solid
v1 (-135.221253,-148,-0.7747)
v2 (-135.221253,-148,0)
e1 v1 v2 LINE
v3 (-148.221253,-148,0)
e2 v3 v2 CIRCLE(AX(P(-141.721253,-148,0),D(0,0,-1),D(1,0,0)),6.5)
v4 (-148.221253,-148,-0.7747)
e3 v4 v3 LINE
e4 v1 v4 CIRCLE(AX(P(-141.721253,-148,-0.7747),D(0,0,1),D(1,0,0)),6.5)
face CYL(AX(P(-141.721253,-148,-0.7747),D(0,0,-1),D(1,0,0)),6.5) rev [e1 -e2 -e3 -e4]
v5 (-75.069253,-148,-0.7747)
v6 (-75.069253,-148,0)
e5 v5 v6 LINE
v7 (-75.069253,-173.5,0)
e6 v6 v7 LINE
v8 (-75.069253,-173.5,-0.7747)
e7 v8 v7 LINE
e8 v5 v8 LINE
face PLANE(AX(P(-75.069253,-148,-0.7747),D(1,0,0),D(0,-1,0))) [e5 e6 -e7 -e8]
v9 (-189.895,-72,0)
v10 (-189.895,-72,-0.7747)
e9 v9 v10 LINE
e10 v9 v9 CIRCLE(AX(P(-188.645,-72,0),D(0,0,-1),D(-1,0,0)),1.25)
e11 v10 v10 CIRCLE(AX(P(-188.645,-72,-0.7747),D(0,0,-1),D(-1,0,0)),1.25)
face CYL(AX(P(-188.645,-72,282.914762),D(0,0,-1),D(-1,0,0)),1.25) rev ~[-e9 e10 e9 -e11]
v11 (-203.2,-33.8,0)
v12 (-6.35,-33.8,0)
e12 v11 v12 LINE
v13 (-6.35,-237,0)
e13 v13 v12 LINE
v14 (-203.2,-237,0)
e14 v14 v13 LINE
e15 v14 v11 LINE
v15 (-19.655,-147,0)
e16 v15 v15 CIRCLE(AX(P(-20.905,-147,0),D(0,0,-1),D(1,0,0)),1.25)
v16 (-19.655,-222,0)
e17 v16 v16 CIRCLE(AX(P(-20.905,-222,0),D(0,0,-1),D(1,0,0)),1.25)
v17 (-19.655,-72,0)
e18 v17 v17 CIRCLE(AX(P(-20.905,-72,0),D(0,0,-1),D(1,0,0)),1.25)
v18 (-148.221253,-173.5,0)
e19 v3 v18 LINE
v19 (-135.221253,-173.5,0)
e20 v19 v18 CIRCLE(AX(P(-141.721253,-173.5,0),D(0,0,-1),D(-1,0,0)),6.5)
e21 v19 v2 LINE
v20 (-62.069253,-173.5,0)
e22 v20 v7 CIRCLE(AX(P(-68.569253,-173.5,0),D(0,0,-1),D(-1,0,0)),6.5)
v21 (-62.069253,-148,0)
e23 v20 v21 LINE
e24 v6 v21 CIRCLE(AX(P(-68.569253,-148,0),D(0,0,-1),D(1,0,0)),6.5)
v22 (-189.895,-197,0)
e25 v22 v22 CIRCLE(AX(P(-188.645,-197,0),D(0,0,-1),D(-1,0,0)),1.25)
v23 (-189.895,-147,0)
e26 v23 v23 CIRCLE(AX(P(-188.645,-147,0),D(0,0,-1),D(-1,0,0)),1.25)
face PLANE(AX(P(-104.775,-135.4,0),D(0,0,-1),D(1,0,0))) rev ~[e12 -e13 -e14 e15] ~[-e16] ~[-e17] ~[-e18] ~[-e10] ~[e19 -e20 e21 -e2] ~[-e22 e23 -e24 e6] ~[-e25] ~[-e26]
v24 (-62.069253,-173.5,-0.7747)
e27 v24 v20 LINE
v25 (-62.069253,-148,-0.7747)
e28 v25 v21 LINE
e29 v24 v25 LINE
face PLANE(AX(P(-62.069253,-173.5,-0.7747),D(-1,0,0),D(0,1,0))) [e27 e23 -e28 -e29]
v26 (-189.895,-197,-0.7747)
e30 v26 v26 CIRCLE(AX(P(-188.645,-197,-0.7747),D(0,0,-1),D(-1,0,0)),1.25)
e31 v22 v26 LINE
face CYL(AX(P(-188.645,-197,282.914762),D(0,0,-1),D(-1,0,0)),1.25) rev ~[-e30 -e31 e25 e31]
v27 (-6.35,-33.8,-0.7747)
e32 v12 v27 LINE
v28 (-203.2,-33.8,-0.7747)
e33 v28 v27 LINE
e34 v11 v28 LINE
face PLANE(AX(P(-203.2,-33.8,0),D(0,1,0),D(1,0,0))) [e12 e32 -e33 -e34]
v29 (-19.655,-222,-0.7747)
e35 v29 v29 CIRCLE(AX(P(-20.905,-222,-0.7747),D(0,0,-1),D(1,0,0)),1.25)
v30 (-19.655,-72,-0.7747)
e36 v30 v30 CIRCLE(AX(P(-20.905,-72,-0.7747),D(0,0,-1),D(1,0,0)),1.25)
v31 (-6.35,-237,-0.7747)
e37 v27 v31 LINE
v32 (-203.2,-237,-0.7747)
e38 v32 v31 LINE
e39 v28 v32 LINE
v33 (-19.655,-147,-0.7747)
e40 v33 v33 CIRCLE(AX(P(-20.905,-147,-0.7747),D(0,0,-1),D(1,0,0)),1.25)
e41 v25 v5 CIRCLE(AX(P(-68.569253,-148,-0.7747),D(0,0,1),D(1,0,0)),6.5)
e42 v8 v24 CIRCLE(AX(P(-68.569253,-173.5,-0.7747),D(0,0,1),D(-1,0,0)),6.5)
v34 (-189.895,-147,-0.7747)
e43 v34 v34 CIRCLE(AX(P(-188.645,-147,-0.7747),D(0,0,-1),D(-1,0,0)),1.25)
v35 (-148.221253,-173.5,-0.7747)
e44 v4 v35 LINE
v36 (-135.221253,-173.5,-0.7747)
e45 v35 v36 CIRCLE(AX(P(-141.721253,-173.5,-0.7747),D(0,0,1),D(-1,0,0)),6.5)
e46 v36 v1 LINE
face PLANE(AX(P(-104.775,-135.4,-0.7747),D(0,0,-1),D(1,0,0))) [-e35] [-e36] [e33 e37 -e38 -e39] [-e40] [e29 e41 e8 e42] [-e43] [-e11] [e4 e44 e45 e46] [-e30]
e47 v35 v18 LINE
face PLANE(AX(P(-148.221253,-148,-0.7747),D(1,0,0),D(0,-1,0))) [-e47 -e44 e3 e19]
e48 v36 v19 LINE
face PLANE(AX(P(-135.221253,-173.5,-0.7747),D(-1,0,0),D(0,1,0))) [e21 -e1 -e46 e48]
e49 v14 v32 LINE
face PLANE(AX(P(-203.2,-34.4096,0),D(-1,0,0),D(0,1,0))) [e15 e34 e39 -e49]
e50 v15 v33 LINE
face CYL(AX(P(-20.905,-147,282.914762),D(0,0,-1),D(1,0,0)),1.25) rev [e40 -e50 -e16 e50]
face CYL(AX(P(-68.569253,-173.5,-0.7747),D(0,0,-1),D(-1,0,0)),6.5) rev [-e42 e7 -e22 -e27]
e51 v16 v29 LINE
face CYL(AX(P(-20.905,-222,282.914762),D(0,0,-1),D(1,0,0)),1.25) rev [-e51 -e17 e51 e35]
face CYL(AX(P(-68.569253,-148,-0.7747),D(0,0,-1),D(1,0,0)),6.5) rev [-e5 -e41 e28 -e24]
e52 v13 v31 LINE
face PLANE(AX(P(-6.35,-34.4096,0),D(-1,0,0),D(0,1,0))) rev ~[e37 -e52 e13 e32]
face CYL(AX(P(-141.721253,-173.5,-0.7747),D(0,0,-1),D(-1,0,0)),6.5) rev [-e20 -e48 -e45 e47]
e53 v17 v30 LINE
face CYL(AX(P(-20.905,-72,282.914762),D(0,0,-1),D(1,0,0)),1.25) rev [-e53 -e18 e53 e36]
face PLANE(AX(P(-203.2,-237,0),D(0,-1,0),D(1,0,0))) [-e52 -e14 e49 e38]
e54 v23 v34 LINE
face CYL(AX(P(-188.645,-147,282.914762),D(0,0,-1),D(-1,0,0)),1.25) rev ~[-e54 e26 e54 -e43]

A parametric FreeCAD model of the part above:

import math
import FreeCAD as App
import Part
import Sketcher
Q = App.Units.Quantity


def add_polygon(sketch, points):
    """Adds a closed chain of lines whose ends are joined by coincident constraints."""
    first, n = sketch.GeometryCount, len(points)
    for a, b in zip(points, points[1:] + points[:1]):
        sketch.addGeometry(Part.LineSegment(App.Vector(*a, 0), App.Vector(*b, 0)), False)
    for i in range(n):
        sketch.addConstraint(Sketcher.Constraint("Coincident", first + i, 2, first + (i + 1) % n, 1))

doc = App.newDocument("Part")
body = doc.addObject("PartDesign::Body", "Body")

sketch1 = body.newObject("Sketcher::SketchObject", "Sketch")
sketch1.AttachmentSupport = (doc.getObject("XY_Plane"), [""])
sketch1.MapMode = "FlatFace"
add_polygon(sketch1, [(-203, -237), (-203, -34), (-6, -34), (-6, -237)])
sketch1.addConstraint([
    Sketcher.Constraint("Vertical", 0),
    Sketcher.Constraint("Horizontal", 1),
    Sketcher.Constraint("Vertical", 2),
    Sketcher.Constraint("Horizontal", 3),
    Sketcher.Constraint("DistanceY", 0, 1, 0, 2, Q("203.2 mm")),
    Sketcher.Constraint("DistanceY", 2, 2, -1, 1, Q("237 mm")),
    Sketcher.Constraint("DistanceX", 1, 1, 1, 2, Q("196.85 mm")),
    Sketcher.Constraint("DistanceX", 0, 2, -1, 1, Q("203.2 mm")),
])
pad1 = body.newObject("PartDesign::Pad", "Pad")
pad1.Profile = sketch1
pad1.Length = 0.7747
pad1.Reversed = True

sketch2 = body.newObject("Sketcher::SketchObject", "Sketch001")
sketch2.AttachmentSupport = (doc.getObject("XY_Plane"), [""])
sketch2.MapMode = "FlatFace"
sketch2.AttachmentOffset = App.Placement(App.Vector(0, 0, -0.7747), App.Rotation())
sketch2.addGeometry([
    Part.LineSegment(App.Vector(-135, -148, 0), App.Vector(-135, -174, 0)),
    Part.ArcOfCircle(Part.Circle(App.Vector(-142, -174, 0), App.Vector(0, 0, 1), 6), math.radians(180), math.radians(360)),
    Part.LineSegment(App.Vector(-148, -174, 0), App.Vector(-148, -148, 0)),
    Part.ArcOfCircle(Part.Circle(App.Vector(-142, -148, 0), App.Vector(0, 0, 1), 6), math.radians(0), math.radians(180)),
    Part.LineSegment(App.Vector(-62, -148, 0), App.Vector(-62, -174, 0)),
    Part.ArcOfCircle(Part.Circle(App.Vector(-69, -174, 0), App.Vector(0, 0, 1), 6), math.radians(180), math.radians(360)),
    Part.LineSegment(App.Vector(-75, -174, 0), App.Vector(-75, -148, 0)),
    Part.ArcOfCircle(Part.Circle(App.Vector(-69, -148, 0), App.Vector(0, 0, 1), 6), math.radians(0), math.radians(180)),
], False)
sketch2.addConstraint([
    Sketcher.Constraint("Tangent", 0, 2, 1, 2),
    Sketcher.Constraint("Tangent", 1, 1, 2, 1),
    Sketcher.Constraint("Tangent", 2, 2, 3, 2),
    Sketcher.Constraint("Tangent", 3, 1, 0, 1),
    Sketcher.Constraint("Tangent", 4, 2, 5, 2),
    Sketcher.Constraint("Tangent", 5, 1, 6, 1),
    Sketcher.Constraint("Tangent", 6, 2, 7, 2),
    Sketcher.Constraint("Tangent", 7, 1, 4, 1),
    Sketcher.Constraint("Vertical", 0),
    Sketcher.Constraint("Vertical", 2),
    Sketcher.Constraint("Vertical", 4),
    Sketcher.Constraint("Vertical", 6),
    Sketcher.Constraint("Equal", 3, 5),
    Sketcher.Constraint("Horizontal", 1, 3, 5, 3),
    Sketcher.Constraint("Horizontal", 3, 3, 7, 3),
    Sketcher.Constraint("Radius", 1, Q("6.5 mm")),
    Sketcher.Constraint("DistanceY", 0, 2, 0, 1, Q("25.5 mm")),
    Sketcher.Constraint("DistanceY", 3, 3, -1, 1, Q("148 mm")),
    Sketcher.Constraint("DistanceX", 1, 3, 5, 3, Q("73.152 mm")),
    Sketcher.Constraint("DistanceX", 1, 3, -1, 1, Q("141.721253 mm")),
])
pocket1 = body.newObject("PartDesign::Pocket", "Pocket")
pocket1.Profile = sketch2
pocket1.Type = "ThroughAll"
pocket1.Reversed = True

sketch3 = body.newObject("Sketcher::SketchObject", "Sketch002")
sketch3.AttachmentSupport = (doc.getObject("XY_Plane"), [""])
sketch3.MapMode = "FlatFace"
add_polygon(sketch3, [(-203.2, -33.8), (-203.2, -34.4), (-6.3, -34.4), (-6.3, -33.8)])
sketch3.addConstraint([
    Sketcher.Constraint("Vertical", 0),
    Sketcher.Constraint("Horizontal", 1),
    Sketcher.Constraint("Vertical", 2),
    Sketcher.Constraint("Horizontal", 3),
    Sketcher.Constraint("DistanceX", 1, 1, 1, 2, Q("196.85 mm")),
    Sketcher.Constraint("DistanceX", 0, 2, -1, 1, Q("203.2 mm")),
    Sketcher.Constraint("DistanceY", 2, 2, -1, 1, Q("33.8 mm")),
    Sketcher.Constraint("DistanceY", 0, 2, 0, 1, Q("0.6096 mm")),
])
pad2 = body.newObject("PartDesign::Pad", "Pad001")
pad2.Profile = sketch3
pad2.Length = 12

sketch4 = body.newObject("Sketcher::SketchObject", "Sketch003")
sketch4.AttachmentSupport = (doc.getObject("XY_Plane"), [""])
sketch4.MapMode = "FlatFace"
add_polygon(sketch4, [(-203, -48), (-203, -60), (-6, -60), (-6, -48)])
sketch4.addConstraint([
    Sketcher.Constraint("Vertical", 0),
    Sketcher.Constraint("Horizontal", 1),
    Sketcher.Constraint("Vertical", 2),
    Sketcher.Constraint("Horizontal", 3),
    Sketcher.Constraint("DistanceX", 1, 1, 1, 2, Q("196.85 mm")),
    Sketcher.Constraint("DistanceX", 0, 2, -1, 1, Q("203.2 mm")),
    Sketcher.Constraint("DistanceY", 0, 2, 0, 1, Q("11.938 mm")),
    Sketcher.Constraint("DistanceY", 0, 2, -1, 1, Q("59.904004 mm")),
])
pad3 = body.newObject("PartDesign::Pad", "Pad002")
pad3.Profile = sketch4
pad3.Length = 0.7747
pad3.Reversed = True

sketch5 = body.newObject("Sketcher::SketchObject", "Sketch004")
sketch5.AttachmentSupport = (doc.getObject("XY_Plane"), [""])
sketch5.MapMode = "FlatFace"
sketch5.AttachmentOffset = App.Placement(App.Vector(0, 0, 12), App.Rotation())
add_polygon(sketch5, [(-203.2, -33.8), (-203.2, -34.4), (-6.3, -34.4), (-6.3, -33.8)])
sketch5.addConstraint([
    Sketcher.Constraint("Vertical", 0),
    Sketcher.Constraint("Horizontal", 1),
    Sketcher.Constraint("Vertical", 2),
    Sketcher.Constraint("Horizontal", 3),
    Sketcher.Constraint("DistanceX", 1, 1, 1, 2, Q("196.85 mm")),
    Sketcher.Constraint("DistanceX", 0, 2, -1, 1, Q("203.2 mm")),
    Sketcher.Constraint("DistanceY", 2, 2, -1, 1, Q("33.8 mm")),
    Sketcher.Constraint("DistanceY", 0, 2, 0, 1, Q("0.6096 mm")),
])
pocket2 = body.newObject("PartDesign::Pocket", "Pocket001")
pocket2.Profile = sketch5
pocket2.Length = 12

sketch6 = body.newObject("Sketcher::SketchObject", "Sketch005")
sketch6.AttachmentSupport = (doc.getObject("XY_Plane"), [""])
sketch6.MapMode = "FlatFace"
sketch6.addGeometry([
    Part.Circle(App.Vector(-188.6, -72, 0), App.Vector(0, 0, 1), 1.2),
    Part.Circle(App.Vector(-188.6, -222, 0), App.Vector(0, 0, 1), 1.2),
    Part.Circle(App.Vector(-188.6, -197, 0), App.Vector(0, 0, 1), 1.2),
    Part.Circle(App.Vector(-188.6, -172, 0), App.Vector(0, 0, 1), 1.2),
    Part.Circle(App.Vector(-188.6, -147, 0), App.Vector(0, 0, 1), 1.2),
    Part.Circle(App.Vector(-188.6, -122, 0), App.Vector(0, 0, 1), 1.2),
    Part.Circle(App.Vector(-188.6, -97, 0), App.Vector(0, 0, 1), 1.2),
], False)
sketch6.addConstraint([
    Sketcher.Constraint("Equal", 0, 1),
    Sketcher.Constraint("Equal", 1, 2),
    Sketcher.Constraint("Equal", 2, 3),
    Sketcher.Constraint("Equal", 3, 4),
    Sketcher.Constraint("Equal", 4, 5),
    Sketcher.Constraint("Equal", 5, 6),
    Sketcher.Constraint("Vertical", 0, 3, 1, 3),
    Sketcher.Constraint("Vertical", 1, 3, 2, 3),
    Sketcher.Constraint("Vertical", 2, 3, 3, 3),
    Sketcher.Constraint("Vertical", 3, 3, 4, 3),
    Sketcher.Constraint("Vertical", 4, 3, 5, 3),
    Sketcher.Constraint("Vertical", 5, 3, 6, 3),
    Sketcher.Constraint("Diameter", 0, Q("2.5 mm")),
    Sketcher.Constraint("DistanceY", 0, 3, -1, 1, Q("72 mm")),
    Sketcher.Constraint("DistanceY", 1, 3, -1, 1, Q("222 mm")),
    Sketcher.Constraint("DistanceY", 2, 3, -1, 1, Q("197 mm")),
    Sketcher.Constraint("DistanceY", 3, 3, -1, 1, Q("172 mm")),
    Sketcher.Constraint("DistanceY", 4, 3, -1, 1, Q("147 mm")),
    Sketcher.Constraint("DistanceY", 5, 3, -1, 1, Q("122 mm")),
    Sketcher.Constraint("DistanceY", 6, 3, -1, 1, Q("97 mm")),
    Sketcher.Constraint("DistanceX", 0, 3, -1, 1, Q("188.645 mm")),
])
doc.recompute()
hole = body.newObject("PartDesign::Hole", "Hole")
hole.Profile = sketch6
hole.ThreadType = "None"
hole.Diameter = 2.5
hole.DepthType = "ThroughAll"
doc.recompute()

datumplane = body.newObject("PartDesign::Plane", "DatumPlane")
datumplane.AttachmentSupport = (doc.getObject("YZ_Plane"), [""])
datumplane.MapMode = "FlatFace"
datumplane.AttachmentOffset = App.Placement(App.Vector(0, 0, -104.775), App.Rotation())
mirrored = body.newObject("PartDesign::Mirrored", "Mirrored")
mirrored.Originals = [hole]
mirrored.MirrorPlane = (datumplane, [""])
body.Tip = mirrored

sketch7 = body.newObject("Sketcher::SketchObject", "Sketch006")
sketch7.AttachmentSupport = (doc.getObject("XY_Plane"), [""])
sketch7.MapMode = "FlatFace"
sketch7.AttachmentOffset = App.Placement(App.Vector(0, 0, -0.7747), App.Rotation())
add_polygon(sketch7, [(-10, -93), (-10, -127), (-193, -127), (-193, -93)])
sketch7.addConstraint([
    Sketcher.Constraint("Vertical", 0),
    Sketcher.Constraint("Horizontal", 1),
    Sketcher.Constraint("Vertical", 2),
    Sketcher.Constraint("Horizontal", 3),
    Sketcher.Constraint("DistanceX", 1, 2, 1, 1, Q("182.676331 mm")),
    Sketcher.Constraint("DistanceY", 0, 2, 0, 1, Q("33.741187 mm")),
    Sketcher.Constraint("DistanceX", 0, 2, -1, 1, Q("9.928541 mm")),
    Sketcher.Constraint("DistanceY", 0, 2, -1, 1, Q("126.70806 mm")),
])
pad4 = body.newObject("PartDesign::Pad", "Pad003")
pad4.Profile = sketch7
pad4.Length = 0.7747

sketch8 = body.newObject("Sketcher::SketchObject", "Sketch007")
sketch8.AttachmentSupport = (doc.getObject("XY_Plane"), [""])
sketch8.MapMode = "FlatFace"
sketch8.AttachmentOffset = App.Placement(App.Vector(0, 0, -0.7747), App.Rotation())
add_polygon(sketch8, [(-174, -160), (-174, -182), (-197, -182), (-197, -160)])
add_polygon(sketch8, [(-14, -165), (-14, -182), (-35, -182), (-35, -165)])
sketch8.addConstraint([
    Sketcher.Constraint("Vertical", 0),
    Sketcher.Constraint("Horizontal", 1),
    Sketcher.Constraint("Vertical", 2),
    Sketcher.Constraint("Horizontal", 3),
    Sketcher.Constraint("Vertical", 4),
    Sketcher.Constraint("Horizontal", 5),
    Sketcher.Constraint("Vertical", 6),
    Sketcher.Constraint("Horizontal", 7),
    Sketcher.Constraint("Horizontal", 1, 2, 4, 2),
    Sketcher.Constraint("DistanceX", 1, 2, 1, 1, Q("22.718001 mm")),
    Sketcher.Constraint("DistanceY", 0, 2, 0, 1, Q("22.312299 mm")),
    Sketcher.Constraint("DistanceY", 4, 2, 4, 1, Q("16.643271 mm")),
    Sketcher.Constraint("DistanceX", 5, 2, 5, 1, Q("21.538836 mm")),
    Sketcher.Constraint("DistanceX", 5, 2, -1, 1, Q("35.04079 mm")),
    Sketcher.Constraint("DistanceX", 0, 2, 4, 2, Q("160.710738 mm")),
    Sketcher.Constraint("DistanceY", 0, 2, -1, 1, Q("182.075533 mm")),
])
pad5 = body.newObject("PartDesign::Pad", "Pad004")
pad5.Profile = sketch8
pad5.Length = 0.7747

sketch9 = body.newObject("Sketcher::SketchObject", "Sketch008")
sketch9.AttachmentSupport = (doc.getObject("XY_Plane"), [""])
sketch9.MapMode = "FlatFace"
add_polygon(sketch9, [(-196, -214), (-196, -228), (-182, -228), (-182, -214)])
add_polygon(sketch9, [(-30, -193), (-30, -202), (-17, -202), (-17, -193)])
sketch9.addConstraint([
    Sketcher.Constraint("Vertical", 0),
    Sketcher.Constraint("Horizontal", 1),
    Sketcher.Constraint("Vertical", 2),
    Sketcher.Constraint("Horizontal", 3),
    Sketcher.Constraint("Vertical", 4),
    Sketcher.Constraint("Horizontal", 5),
    Sketcher.Constraint("Vertical", 6),
    Sketcher.Constraint("Horizontal", 7),
    Sketcher.Constraint("DistanceX", 1, 1, 1, 2, Q("13.905318 mm")),
    Sketcher.Constraint("DistanceX", 5, 1, 5, 2, Q("12.509578 mm")),
    Sketcher.Constraint("DistanceX", 3, 2, 5, 2, Q("178.851301 mm")),
    Sketcher.Constraint("DistanceY", 0, 2, 0, 1, Q("14.215217 mm")),
    Sketcher.Constraint("DistanceY", 4, 2, 4, 1, Q("9.075577 mm")),
    Sketcher.Constraint("DistanceX", 0, 2, -1, 1, Q("196.26654 mm")),
    Sketcher.Constraint("DistanceY", 4, 2, -1, 1, Q("202.41418 mm")),
    Sketcher.Constraint("DistanceY", 1, 2, 6, 2, Q("34.652849 mm")),
])
pad6 = body.newObject("PartDesign::Pad", "Pad005")
pad6.Profile = sketch9
pad6.Length = 0.7747
pad6.Reversed = True

doc.recompute()
